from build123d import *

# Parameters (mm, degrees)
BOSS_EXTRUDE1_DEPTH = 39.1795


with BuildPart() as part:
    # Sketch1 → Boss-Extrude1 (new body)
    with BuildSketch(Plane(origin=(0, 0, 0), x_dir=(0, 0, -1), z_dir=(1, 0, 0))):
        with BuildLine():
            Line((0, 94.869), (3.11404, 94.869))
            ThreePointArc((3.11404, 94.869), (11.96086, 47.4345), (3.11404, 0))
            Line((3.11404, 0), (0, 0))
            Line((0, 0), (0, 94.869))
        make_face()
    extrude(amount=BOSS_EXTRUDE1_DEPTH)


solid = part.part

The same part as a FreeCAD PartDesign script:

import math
import FreeCAD as App
import Part
import Sketcher
from FreeCAD import Vector
Q = App.Units.Quantity

doc = App.newDocument("Part")
params = doc.addObject("Spreadsheet::Sheet", "Params")
for row, (alias, value) in enumerate([
    ("sketch1_width", "3.735 in"),
    ("pad1_length", "1.5425 in"),
], start=1):
    params.set(f"A{row}", alias)
    params.set(f"B{row}", "=" + value)
    params.setAlias(f"B{row}", alias)

body = doc.addObject("PartDesign::Body", "Body")

# Sketch on YZ plane
sketch1 = body.newObject("Sketcher::SketchObject", "Sketch")
sketch1.AttachmentSupport = (doc.getObject("YZ_Plane"), [""])
sketch1.MapMode = "FlatFace"
sketch1.addGeometry(Part.LineSegment(Vector(94.9, -3.1, 0), Vector(94.9, 0, 0)), False)
sketch1.addGeometry(Part.LineSegment(Vector(94.9, 0, 0), Vector(0, 0, 0)), False)
sketch1.addGeometry(Part.LineSegment(Vector(0, 0, 0), Vector(0, -3.1, 0)), False)
sketch1.addGeometry(Part.ArcOfCircle(Part.Circle(Vector(47.4, 119.6, 0), Vector(0, 0, 1), 131.6), math.radians(-111), math.radians(-69)), False)
sketch1.addConstraint(Sketcher.Constraint("Coincident", 0, 2, 1, 1))
sketch1.addConstraint(Sketcher.Constraint("Coincident", 1, 2, 2, 1))
sketch1.addConstraint(Sketcher.Constraint("Coincident", 2, 2, 3, 1))
sketch1.addConstraint(Sketcher.Constraint("Coincident", 3, 2, 0, 1))
sketch1.addConstraint(Sketcher.Constraint("Vertical", 0))
sketch1.addConstraint(Sketcher.Constraint("Horizontal", 1))
sketch1.addConstraint(Sketcher.Constraint("Vertical", 2))
sketch1.addConstraint(Sketcher.Constraint("Coincident", 1, 2, -1, 1))
sketch1.addConstraint(Sketcher.Constraint("Horizontal", 2, 2, 3, 2))
sketch1.addConstraint(Sketcher.Constraint("DistanceX", 1, 2, 1, 1, Q("3.735 in")))
sketch1.addConstraint(Sketcher.Constraint("DistanceY", 0, 1, 0, 2, Q("0.1226 in")))
sketch1.addConstraint(Sketcher.Constraint("Radius", 3, Q("131.589544 mm")))
sketch1.setExpression("Constraints[9]", "Params.sketch1_width")
pad1 = body.newObject("PartDesign::Pad", "Pad")
pad1.Profile = sketch1
pad1.setExpression("Length", "Params.pad1_length")

doc.recompute()
